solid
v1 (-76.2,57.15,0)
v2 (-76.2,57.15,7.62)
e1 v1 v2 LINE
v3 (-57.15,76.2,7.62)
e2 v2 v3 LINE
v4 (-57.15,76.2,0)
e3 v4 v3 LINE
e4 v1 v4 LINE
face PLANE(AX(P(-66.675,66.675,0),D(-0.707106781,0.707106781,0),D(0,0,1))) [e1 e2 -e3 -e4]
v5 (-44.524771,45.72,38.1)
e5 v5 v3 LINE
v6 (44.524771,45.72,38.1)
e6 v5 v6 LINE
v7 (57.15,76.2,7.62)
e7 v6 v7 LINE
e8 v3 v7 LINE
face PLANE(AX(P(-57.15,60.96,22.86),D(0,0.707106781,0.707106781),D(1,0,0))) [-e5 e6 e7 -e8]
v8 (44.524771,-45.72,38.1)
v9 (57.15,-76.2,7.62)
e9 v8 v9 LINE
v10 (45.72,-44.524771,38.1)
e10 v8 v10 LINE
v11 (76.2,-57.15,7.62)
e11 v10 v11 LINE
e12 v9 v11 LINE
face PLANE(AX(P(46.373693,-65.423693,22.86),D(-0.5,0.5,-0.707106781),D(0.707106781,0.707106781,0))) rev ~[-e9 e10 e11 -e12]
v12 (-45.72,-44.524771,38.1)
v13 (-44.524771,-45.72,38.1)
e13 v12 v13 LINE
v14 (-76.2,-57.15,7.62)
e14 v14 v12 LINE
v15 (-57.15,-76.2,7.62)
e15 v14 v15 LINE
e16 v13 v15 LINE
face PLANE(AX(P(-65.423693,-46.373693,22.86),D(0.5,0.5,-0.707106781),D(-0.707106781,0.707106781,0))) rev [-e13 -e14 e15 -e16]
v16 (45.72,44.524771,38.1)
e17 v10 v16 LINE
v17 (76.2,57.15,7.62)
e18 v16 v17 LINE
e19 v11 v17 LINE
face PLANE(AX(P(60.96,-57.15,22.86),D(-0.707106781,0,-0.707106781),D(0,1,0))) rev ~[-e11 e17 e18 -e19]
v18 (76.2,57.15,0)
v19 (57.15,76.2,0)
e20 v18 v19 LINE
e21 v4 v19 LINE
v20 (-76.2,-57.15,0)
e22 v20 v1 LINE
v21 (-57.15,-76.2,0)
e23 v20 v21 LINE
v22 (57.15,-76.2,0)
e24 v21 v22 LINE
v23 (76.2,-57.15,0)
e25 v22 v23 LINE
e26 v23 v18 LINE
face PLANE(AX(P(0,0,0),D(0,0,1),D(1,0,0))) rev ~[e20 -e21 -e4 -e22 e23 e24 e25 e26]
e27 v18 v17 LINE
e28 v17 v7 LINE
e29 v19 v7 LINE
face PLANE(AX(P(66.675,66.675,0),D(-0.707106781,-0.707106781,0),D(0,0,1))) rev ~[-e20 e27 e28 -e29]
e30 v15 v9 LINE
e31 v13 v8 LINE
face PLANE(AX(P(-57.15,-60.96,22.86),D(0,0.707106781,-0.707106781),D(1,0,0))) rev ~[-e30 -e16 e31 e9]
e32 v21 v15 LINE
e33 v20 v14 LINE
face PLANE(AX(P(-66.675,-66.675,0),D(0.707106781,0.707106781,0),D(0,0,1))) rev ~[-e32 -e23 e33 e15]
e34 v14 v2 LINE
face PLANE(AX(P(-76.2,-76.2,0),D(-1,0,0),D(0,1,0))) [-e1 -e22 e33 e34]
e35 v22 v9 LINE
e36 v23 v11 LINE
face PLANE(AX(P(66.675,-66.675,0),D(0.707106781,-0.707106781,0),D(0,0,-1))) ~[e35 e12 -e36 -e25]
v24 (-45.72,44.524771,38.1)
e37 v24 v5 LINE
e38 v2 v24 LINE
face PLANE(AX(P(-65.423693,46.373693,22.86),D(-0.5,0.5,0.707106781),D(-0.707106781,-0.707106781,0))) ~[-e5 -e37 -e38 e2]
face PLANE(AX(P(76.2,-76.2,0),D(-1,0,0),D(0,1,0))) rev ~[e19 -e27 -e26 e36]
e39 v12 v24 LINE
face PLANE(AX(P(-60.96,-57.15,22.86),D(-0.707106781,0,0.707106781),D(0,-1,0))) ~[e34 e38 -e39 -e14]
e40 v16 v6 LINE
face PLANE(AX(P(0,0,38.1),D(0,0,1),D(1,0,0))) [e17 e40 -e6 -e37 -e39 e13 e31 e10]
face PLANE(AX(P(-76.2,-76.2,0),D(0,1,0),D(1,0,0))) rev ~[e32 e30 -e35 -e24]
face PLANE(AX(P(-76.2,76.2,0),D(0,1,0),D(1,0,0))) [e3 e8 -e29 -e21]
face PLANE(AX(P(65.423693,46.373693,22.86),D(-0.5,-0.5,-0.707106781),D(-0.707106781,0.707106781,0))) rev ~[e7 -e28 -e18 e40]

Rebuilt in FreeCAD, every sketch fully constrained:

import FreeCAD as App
import Part
import Sketcher

V = App.Vector
Q = App.Units.Quantity


def edges_at(feature, points):
    """Names of the edges that pass closest to the given points."""
    edges = feature.Shape.Edges
    near = lambda p: min(range(len(edges)), key=lambda i: edges[i].distToShape(Part.Vertex(*p))[0])
    return sorted({f"Edge{near(p) + 1}" for p in points})

doc = App.newDocument("Part")
body = doc.addObject("PartDesign::Body", "Body")

sketch1 = doc.addObject("Sketcher::SketchObject", "Sketch")
body.addObject(sketch1)
sketch1.AttachmentSupport = (doc.XY_Plane, [""])
sketch1.MapMode = "FlatFace"
sketch1.addGeometry(Part.LineSegment(V(-76, 76, 0), V(-76, -76, 0)), False)
sketch1.addGeometry(Part.LineSegment(V(-76, -76, 0), V(76, -76, 0)), False)
sketch1.addGeometry(Part.LineSegment(V(76, -76, 0), V(76, 76, 0)), False)
sketch1.addGeometry(Part.LineSegment(V(76, 76, 0), V(-76, 76, 0)), False)
sketch1.addConstraint(Sketcher.Constraint("Coincident", 0, 2, 1, 1))
sketch1.addConstraint(Sketcher.Constraint("Coincident", 1, 2, 2, 1))
sketch1.addConstraint(Sketcher.Constraint("Coincident", 2, 2, 3, 1))
sketch1.addConstraint(Sketcher.Constraint("Coincident", 3, 2, 0, 1))
sketch1.addConstraint(Sketcher.Constraint("Vertical", 0))
sketch1.addConstraint(Sketcher.Constraint("Horizontal", 1))
sketch1.addConstraint(Sketcher.Constraint("Vertical", 2))
sketch1.addConstraint(Sketcher.Constraint("Horizontal", 3))
sketch1.addConstraint(Sketcher.Constraint("Symmetric", 0, 2, 2, 2, -1, 1))
sketch1.addConstraint(Sketcher.Constraint("Equal", 3, 0))
sketch1.addConstraint(Sketcher.Constraint("DistanceX", 1, 1, 1, 2, Q("6 in")))
pad1 = doc.addObject("PartDesign::Pad", "Pad")
body.addObject(pad1)
pad1.Profile = sketch1
pad1.Length = Q("1.5 in")
doc.recompute()

chamfer = doc.addObject("PartDesign::Chamfer", "Chamfer")
body.addObject(chamfer)
chamfer.Base = (pad1, edges_at(pad1, [
    (-76.2, -76.2, 19.05),
    (76.2, -76.2, 19.05),
    (76.2, 76.2, 19.05),
    (-76.2, 76.2, 19.05),
]))
chamfer.Size = Q("0.75 in")
doc.recompute()

chamfer2 = doc.addObject("PartDesign::Chamfer", "Chamfer001")
body.addObject(chamfer2)
chamfer2.Base = (chamfer, edges_at(chamfer, [
    (0, -76.2, 38.1),
    (-76.2, 0, 38.1),
    (0, 76.2, 38.1),
    (76.2, 0, 38.1),
    (66.675, -66.675, 38.1),
    (66.675, 66.675, 38.1),
    (-66.675, 66.675, 38.1),
    (-66.675, -66.675, 38.1),
]))
chamfer2.Size = Q("1.2 in")

doc.recompute()
